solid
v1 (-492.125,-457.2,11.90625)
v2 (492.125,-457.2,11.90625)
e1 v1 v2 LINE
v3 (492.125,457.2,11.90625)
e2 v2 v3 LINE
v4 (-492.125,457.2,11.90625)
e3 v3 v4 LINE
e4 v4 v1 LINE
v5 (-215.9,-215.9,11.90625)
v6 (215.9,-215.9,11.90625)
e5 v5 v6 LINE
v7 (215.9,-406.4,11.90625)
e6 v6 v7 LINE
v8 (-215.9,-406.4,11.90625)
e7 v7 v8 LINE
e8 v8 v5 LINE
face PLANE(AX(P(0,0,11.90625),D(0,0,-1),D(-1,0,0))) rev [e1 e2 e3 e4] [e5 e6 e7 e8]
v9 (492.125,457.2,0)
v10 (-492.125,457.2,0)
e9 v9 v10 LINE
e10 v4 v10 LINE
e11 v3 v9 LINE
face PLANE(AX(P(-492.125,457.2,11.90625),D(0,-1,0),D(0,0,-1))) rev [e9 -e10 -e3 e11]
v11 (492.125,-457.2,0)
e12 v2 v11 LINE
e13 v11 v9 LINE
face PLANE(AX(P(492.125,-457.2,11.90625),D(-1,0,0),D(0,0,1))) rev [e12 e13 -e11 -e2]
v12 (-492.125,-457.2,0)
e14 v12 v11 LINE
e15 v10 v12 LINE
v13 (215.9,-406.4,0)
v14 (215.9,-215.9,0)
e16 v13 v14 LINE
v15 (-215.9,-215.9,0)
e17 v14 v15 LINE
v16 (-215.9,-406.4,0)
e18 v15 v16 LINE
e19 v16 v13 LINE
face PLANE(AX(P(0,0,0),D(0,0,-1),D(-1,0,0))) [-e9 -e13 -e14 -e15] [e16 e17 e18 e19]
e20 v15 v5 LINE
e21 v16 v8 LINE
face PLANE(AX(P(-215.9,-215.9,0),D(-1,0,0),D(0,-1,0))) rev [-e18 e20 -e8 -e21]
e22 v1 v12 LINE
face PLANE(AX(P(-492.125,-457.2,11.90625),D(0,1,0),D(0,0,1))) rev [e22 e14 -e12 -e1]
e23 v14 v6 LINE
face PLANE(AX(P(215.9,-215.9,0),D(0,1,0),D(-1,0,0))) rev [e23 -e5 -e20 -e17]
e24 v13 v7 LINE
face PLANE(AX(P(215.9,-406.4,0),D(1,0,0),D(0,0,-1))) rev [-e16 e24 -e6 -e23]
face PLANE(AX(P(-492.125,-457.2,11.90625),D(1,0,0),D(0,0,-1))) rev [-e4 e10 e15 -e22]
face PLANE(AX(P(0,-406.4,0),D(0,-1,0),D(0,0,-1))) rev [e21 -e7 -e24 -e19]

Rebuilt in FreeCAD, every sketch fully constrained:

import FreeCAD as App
import Part
import Sketcher

V = App.Vector
Q = App.Units.Quantity

doc = App.newDocument("Part")
body = doc.addObject("PartDesign::Body", "Body")

# Sketch on XY plane
sketch1 = doc.addObject("Sketcher::SketchObject", "Sketch")
body.addObject(sketch1)
sketch1.AttachmentSupport = (doc.XY_Plane, [""])
sketch1.MapMode = "FlatFace"
sketch1.addGeometry(Part.LineSegment(V(-492, 457, 0), V(-492, -457, 0)), False)
sketch1.addGeometry(Part.LineSegment(V(-492, -457, 0), V(492, -457, 0)), False)
sketch1.addGeometry(Part.LineSegment(V(492, -457, 0), V(492, 457, 0)), False)
sketch1.addGeometry(Part.LineSegment(V(492, 457, 0), V(-492, 457, 0)), False)
sketch1.addConstraint(Sketcher.Constraint("Coincident", 0, 2, 1, 1))
sketch1.addConstraint(Sketcher.Constraint("Coincident", 1, 2, 2, 1))
sketch1.addConstraint(Sketcher.Constraint("Coincident", 2, 2, 3, 1))
sketch1.addConstraint(Sketcher.Constraint("Coincident", 3, 2, 0, 1))
sketch1.addConstraint(Sketcher.Constraint("Vertical", 0))
sketch1.addConstraint(Sketcher.Constraint("Horizontal", 1))
sketch1.addConstraint(Sketcher.Constraint("Vertical", 2))
sketch1.addConstraint(Sketcher.Constraint("Horizontal", 3))
sketch1.addConstraint(Sketcher.Constraint("Symmetric", 0, 2, 2, 2, -1, 1))
sketch1.addConstraint(Sketcher.Constraint("DistanceY", 0, 2, 0, 1, Q("36 in")))
sketch1.addConstraint(Sketcher.Constraint("DistanceX", 1, 1, 1, 2, Q("38.75 in")))
pad1 = doc.addObject("PartDesign::Pad", "Pad")
body.addObject(pad1)
pad1.Profile = sketch1
pad1.Length = Q("0.46875 in")

# Sketch on XY plane
sketch2 = doc.addObject("Sketcher::SketchObject", "Sketch001")
body.addObject(sketch2)
sketch2.AttachmentSupport = (doc.XY_Plane, [""])
sketch2.MapMode = "FlatFace"
sketch2.AttachmentOffset = App.Placement(V(0, 0, 0.46875 * 25.4), App.Rotation())
sketch2.addGeometry(Part.LineSegment(V(216, -406, 0), V(216, -216, 0)), False)
sketch2.addGeometry(Part.LineSegment(V(216, -216, 0), V(-216, -216, 0)), False)
sketch2.addGeometry(Part.LineSegment(V(-216, -216, 0), V(-216, -406, 0)), False)
sketch2.addGeometry(Part.LineSegment(V(-216, -406, 0), V(216, -406, 0)), False)
sketch2.addConstraint(Sketcher.Constraint("Coincident", 0, 2, 1, 1))
sketch2.addConstraint(Sketcher.Constraint("Coincident", 1, 2, 2, 1))
sketch2.addConstraint(Sketcher.Constraint("Coincident", 2, 2, 3, 1))
sketch2.addConstraint(Sketcher.Constraint("Coincident", 3, 2, 0, 1))
sketch2.addConstraint(Sketcher.Constraint("Vertical", 0))
sketch2.addConstraint(Sketcher.Constraint("Horizontal", 1))
sketch2.addConstraint(Sketcher.Constraint("Vertical", 2))
sketch2.addConstraint(Sketcher.Constraint("Horizontal", 3))
sketch2.addConstraint(Sketcher.Constraint("DistanceX", 1, 2, 1, 1, Q("17 in")))
sketch2.addConstraint(Sketcher.Constraint("DistanceY", 0, 1, 0, 2, Q("7.5 in")))
sketch2.addConstraint(Sketcher.Constraint("DistanceY", 2, 2, -1, 1, Q("16 in")))
sketch2.addConstraint(Sketcher.Constraint("DistanceX", -1, 1, 0, 2, Q("8.5 in")))
pocket1 = doc.addObject("PartDesign::Pocket", "Pocket")
body.addObject(pocket1)
pocket1.Profile = sketch2
pocket1.Type = "ThroughAll"
pocket1.Midplane = True

doc.recompute()
